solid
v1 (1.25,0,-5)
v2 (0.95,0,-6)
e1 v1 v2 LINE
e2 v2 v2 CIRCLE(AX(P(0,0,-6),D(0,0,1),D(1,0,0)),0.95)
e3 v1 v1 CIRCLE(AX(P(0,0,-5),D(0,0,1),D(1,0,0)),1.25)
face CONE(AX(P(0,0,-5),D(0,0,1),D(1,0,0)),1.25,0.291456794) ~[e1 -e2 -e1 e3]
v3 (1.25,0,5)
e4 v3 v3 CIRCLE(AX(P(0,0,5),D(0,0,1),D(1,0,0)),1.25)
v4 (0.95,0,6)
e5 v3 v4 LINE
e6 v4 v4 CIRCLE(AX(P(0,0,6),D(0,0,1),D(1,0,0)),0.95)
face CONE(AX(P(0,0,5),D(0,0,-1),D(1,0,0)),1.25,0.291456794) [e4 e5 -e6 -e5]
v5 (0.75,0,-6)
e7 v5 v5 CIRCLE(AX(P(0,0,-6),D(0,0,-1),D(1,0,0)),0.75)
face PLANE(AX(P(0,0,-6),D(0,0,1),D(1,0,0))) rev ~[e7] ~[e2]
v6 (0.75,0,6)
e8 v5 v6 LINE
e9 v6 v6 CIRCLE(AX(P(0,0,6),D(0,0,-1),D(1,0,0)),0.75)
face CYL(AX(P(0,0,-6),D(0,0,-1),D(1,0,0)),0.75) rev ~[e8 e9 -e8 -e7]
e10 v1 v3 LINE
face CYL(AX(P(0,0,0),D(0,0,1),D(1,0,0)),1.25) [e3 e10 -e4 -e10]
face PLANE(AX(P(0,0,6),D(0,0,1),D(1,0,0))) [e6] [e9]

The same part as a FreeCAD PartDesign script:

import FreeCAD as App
import Part
import Sketcher
from FreeCAD import Vector


def edges_at(feature, points):
    """Names of the edges that pass closest to the given points."""
    edges = feature.Shape.Edges
    near = lambda p: min(range(len(edges)), key=lambda i: edges[i].distToShape(Part.Vertex(*p))[0])
    return sorted({f"Edge{near(p) + 1}" for p in points})

doc = App.newDocument("Part")
body = doc.addObject("PartDesign::Body", "Body")

# Sketch on XY plane
sketch1 = doc.addObject("Sketcher::SketchObject", "Sketch")
body.addObject(sketch1)
sketch1.AttachmentSupport = (doc.XY_Plane, [""])
sketch1.MapMode = "FlatFace"
sketch1.addGeometry(Part.Circle(Vector(0, 0, 0), Vector(0, 0, 1), 1.25), False)
sketch1.addConstraint([
    Sketcher.Constraint("Coincident", 0, 3, -1, 1),
    Sketcher.Constraint("Diameter", 0, 2.5),
])
pad1 = doc.addObject("PartDesign::Pad", "Pad")
body.addObject(pad1)
pad1.Profile = sketch1
pad1.Length = 12
pad1.Midplane = True

# Sketch on XY plane
sketch2 = doc.addObject("Sketcher::SketchObject", "Sketch001")
body.addObject(sketch2)
sketch2.AttachmentSupport = (doc.XY_Plane, [""])
sketch2.MapMode = "FlatFace"
sketch2.AttachmentOffset = App.Placement(Vector(0, 0, -6), App.Rotation())
sketch2.addGeometry(Part.Circle(Vector(0, 0, 0), Vector(0, 0, 1), 0.75), False)
sketch2.addConstraint([
    Sketcher.Constraint("Coincident", 0, 3, -1, 1),
    Sketcher.Constraint("Diameter", 0, 1.5),
])
pocket1 = doc.addObject("PartDesign::Pocket", "Pocket")
body.addObject(pocket1)
pocket1.Profile = sketch2
pocket1.Type = "ThroughAll"
pocket1.Reversed = True
doc.recompute()

chamfer = doc.addObject("PartDesign::Chamfer", "Chamfer")
body.addObject(chamfer)
chamfer.Base = (pocket1, edges_at(pocket1, [(-1.25, 0, -6), (-1.25, 0, 6)]))
chamfer.ChamferType = "Two distances"
chamfer.Size = 1
chamfer.Size2 = 0.3

doc.recompute()
